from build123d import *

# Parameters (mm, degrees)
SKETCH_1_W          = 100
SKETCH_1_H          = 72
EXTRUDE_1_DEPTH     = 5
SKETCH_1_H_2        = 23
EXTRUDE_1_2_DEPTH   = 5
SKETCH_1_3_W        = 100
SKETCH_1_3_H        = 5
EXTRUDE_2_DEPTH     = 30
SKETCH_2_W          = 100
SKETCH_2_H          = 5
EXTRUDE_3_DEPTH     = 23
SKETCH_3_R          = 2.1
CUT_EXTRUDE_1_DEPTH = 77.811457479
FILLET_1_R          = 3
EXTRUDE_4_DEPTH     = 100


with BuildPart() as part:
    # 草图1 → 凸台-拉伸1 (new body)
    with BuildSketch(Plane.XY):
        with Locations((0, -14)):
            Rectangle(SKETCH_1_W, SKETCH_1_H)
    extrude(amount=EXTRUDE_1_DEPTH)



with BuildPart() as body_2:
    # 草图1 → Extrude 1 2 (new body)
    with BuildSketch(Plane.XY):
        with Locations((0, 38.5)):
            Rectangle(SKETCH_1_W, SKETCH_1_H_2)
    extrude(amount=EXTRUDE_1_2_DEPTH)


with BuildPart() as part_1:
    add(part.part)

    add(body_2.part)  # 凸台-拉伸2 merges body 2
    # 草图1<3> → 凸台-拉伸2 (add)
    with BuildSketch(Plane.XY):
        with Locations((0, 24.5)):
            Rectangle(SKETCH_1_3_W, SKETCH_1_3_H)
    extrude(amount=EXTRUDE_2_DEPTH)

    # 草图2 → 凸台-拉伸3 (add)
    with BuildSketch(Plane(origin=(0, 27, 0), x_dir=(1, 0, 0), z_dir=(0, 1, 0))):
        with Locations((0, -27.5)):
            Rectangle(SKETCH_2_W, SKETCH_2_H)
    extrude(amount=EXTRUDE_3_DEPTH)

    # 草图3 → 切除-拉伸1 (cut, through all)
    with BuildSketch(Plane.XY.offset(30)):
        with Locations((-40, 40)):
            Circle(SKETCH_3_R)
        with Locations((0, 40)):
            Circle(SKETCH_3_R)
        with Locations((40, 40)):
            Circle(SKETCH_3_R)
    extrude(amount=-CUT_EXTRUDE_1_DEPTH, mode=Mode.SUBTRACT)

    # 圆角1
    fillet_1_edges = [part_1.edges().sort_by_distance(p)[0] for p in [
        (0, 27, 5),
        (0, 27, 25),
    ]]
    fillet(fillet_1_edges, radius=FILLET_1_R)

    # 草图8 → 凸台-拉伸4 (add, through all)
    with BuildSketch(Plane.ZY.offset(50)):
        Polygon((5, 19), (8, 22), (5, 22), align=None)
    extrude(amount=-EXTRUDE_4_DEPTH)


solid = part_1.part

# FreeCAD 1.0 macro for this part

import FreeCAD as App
import Part
import Sketcher

V = App.Vector
Q = App.Units.Quantity


def edges_at(feature, points):
    """Names of the edges that pass closest to the given points."""
    edges = feature.Shape.Edges
    near = lambda p: min(range(len(edges)), key=lambda i: edges[i].distToShape(Part.Vertex(*p))[0])
    return sorted({f"Edge{near(p) + 1}" for p in points})


def add_polygon(sketch, points):
    """Adds a closed chain of lines whose ends are joined by coincident constraints."""
    first, n = sketch.GeometryCount, len(points)
    for a, b in zip(points, points[1:] + points[:1]):
        sketch.addGeometry(Part.LineSegment(App.Vector(*a, 0), App.Vector(*b, 0)), False)
    for i in range(n):
        sketch.addConstraint(Sketcher.Constraint("Coincident", first + i, 2, first + (i + 1) % n, 1))

doc = App.newDocument("Part")
body = doc.addObject("PartDesign::Body", "Body")

# Sketch on XY plane
sketch1 = body.newObject("Sketcher::SketchObject", "Sketch")
sketch1.AttachmentSupport = (doc.getObject("XY_Plane"), [""])
sketch1.MapMode = "FlatFace"
add_polygon(sketch1, [(-50, 22), (-50, -50), (50, -50), (50, 22)])  # lines 0-3
sketch1.addConstraint([
    Sketcher.Constraint("Vertical", 0),
    Sketcher.Constraint("Horizontal", 1),
    Sketcher.Constraint("Vertical", 2),
    Sketcher.Constraint("Horizontal", 3),
    Sketcher.Constraint("DistanceX", 1, 1, 1, 2, Q("100 mm")),
    Sketcher.Constraint("DistanceY", 0, 2, 0, 1, Q("72 mm")),
    Sketcher.Constraint("DistanceX", 0, 2, -1, 1, Q("50 mm")),
    Sketcher.Constraint("DistanceY", 0, 2, -1, 1, Q("50 mm")),
])
pad1 = body.newObject("PartDesign::Pad", "Pad")
pad1.Profile = sketch1
pad1.Length = 5
body2 = doc.addObject("PartDesign::Body", "Body001")

# Sketch on XY plane
sketch2 = body2.newObject("Sketcher::SketchObject", "Sketch001")
sketch2.AttachmentSupport = (doc.getObject("XY_Plane001"), [""])
sketch2.MapMode = "FlatFace"
add_polygon(sketch2, [(-50, 50), (-50, 27), (50, 27), (50, 50)])  # lines 0-3
sketch2.addConstraint([
    Sketcher.Constraint("Vertical", 0),
    Sketcher.Constraint("Horizontal", 1),
    Sketcher.Constraint("Vertical", 2),
    Sketcher.Constraint("Horizontal", 3),
    Sketcher.Constraint("DistanceX", 1, 1, 1, 2, Q("100 mm")),
    Sketcher.Constraint("DistanceY", 0, 2, 0, 1, Q("23 mm")),
    Sketcher.Constraint("DistanceX", 0, 2, -1, 1, Q("50 mm")),
    Sketcher.Constraint("DistanceY", -1, 1, 0, 2, Q("27 mm")),
])
pad2 = body2.newObject("PartDesign::Pad", "Pad001")
pad2.Profile = sketch2
pad2.Length = 5
body.AllowCompound = True
doc.recompute()

boolean = body.newObject("PartDesign::Boolean", "Boolean")
boolean.Type = "Fuse"
boolean.addObjects([body2])

# Sketch on XY plane
sketch3 = body.newObject("Sketcher::SketchObject", "Sketch002")
sketch3.AttachmentSupport = (doc.getObject("XY_Plane"), [""])
sketch3.MapMode = "FlatFace"
add_polygon(sketch3, [(-50, 27), (-50, 22), (50, 22), (50, 27)])  # lines 0-3
sketch3.addConstraint([
    Sketcher.Constraint("Vertical", 0),
    Sketcher.Constraint("Horizontal", 1),
    Sketcher.Constraint("Vertical", 2),
    Sketcher.Constraint("Horizontal", 3),
    Sketcher.Constraint("DistanceX", 1, 1, 1, 2, Q("100 mm")),
    Sketcher.Constraint("DistanceY", 0, 2, 0, 1, Q("5 mm")),
    Sketcher.Constraint("DistanceX", 0, 2, -1, 1, Q("50 mm")),
    Sketcher.Constraint("DistanceY", -1, 1, 0, 2, Q("22 mm")),
])
pad3 = body.newObject("PartDesign::Pad", "Pad002")
pad3.Profile = sketch3
pad3.Length = 30

# Sketch on XZ plane
sketch4 = body.newObject("Sketcher::SketchObject", "Sketch003")
sketch4.AttachmentSupport = (doc.getObject("XZ_Plane"), [""])
sketch4.MapMode = "FlatFace"
sketch4.AttachmentOffset = App.Placement(V(0, 0, -27), App.Rotation())
add_polygon(sketch4, [(-50, 25), (-50, 30), (50, 30), (50, 25)])  # lines 0-3
sketch4.addConstraint([
    Sketcher.Constraint("Vertical", 0),
    Sketcher.Constraint("Horizontal", 1),
    Sketcher.Constraint("Vertical", 2),
    Sketcher.Constraint("Horizontal", 3),
    Sketcher.Constraint("DistanceX", 1, 1, 1, 2, Q("100 mm")),
    Sketcher.Constraint("DistanceY", 0, 1, 0, 2, Q("5 mm")),
    Sketcher.Constraint("DistanceX", 0, 2, -1, 1, Q("50 mm")),
    Sketcher.Constraint("DistanceY", -1, 1, 0, 2, Q("30 mm")),
])
pad4 = body.newObject("PartDesign::Pad", "Pad003")
pad4.Profile = sketch4
pad4.Length = 23
pad4.Reversed = True

# Sketch on XY plane
sketch5 = body.newObject("Sketcher::SketchObject", "Sketch004")
sketch5.AttachmentSupport = (doc.getObject("XY_Plane"), [""])
sketch5.MapMode = "FlatFace"
sketch5.AttachmentOffset = App.Placement(V(0, 0, 30), App.Rotation())
sketch5.addGeometry([
    Part.Circle(V(-40, 40, 0), V(0, 0, 1), 2.1),
    Part.Circle(V(0, 40, 0), V(0, 0, 1), 2.1),
    Part.Circle(V(40, 40, 0), V(0, 0, 1), 2.1),
], False)
sketch5.addConstraint([
    Sketcher.Constraint("Equal", 0, 1),
    Sketcher.Constraint("Equal", 1, 2),
    Sketcher.Constraint("Symmetric", 0, 3, 2, 3, -2),
    Sketcher.Constraint("PointOnObject", 1, 3, -2),
    Sketcher.Constraint("Horizontal", 0, 3, 1, 3),
    Sketcher.Constraint("Diameter", 0, Q("4.2 mm")),
    Sketcher.Constraint("DistanceX", 0, 3, -1, 1, Q("40 mm")),
    Sketcher.Constraint("DistanceY", -1, 1, 0, 3, Q("40 mm")),
])
pocket1 = body.newObject("PartDesign::Pocket", "Pocket")
pocket1.Profile = sketch5
pocket1.Type = "ThroughAll"
doc.recompute()

fillet = body.newObject("PartDesign::Fillet", "Fillet")
fillet.Base = (pocket1, edges_at(pocket1, [(0, 27, 5), (0, 27, 25)]))
fillet.Radius = 3

# Sketch on YZ plane
sketch6 = body.newObject("Sketcher::SketchObject", "Sketch005")
sketch6.AttachmentSupport = (doc.getObject("YZ_Plane"), [""])
sketch6.MapMode = "FlatFace"
sketch6.AttachmentOffset = App.Placement(V(0, 0, -50), App.Rotation())
add_polygon(sketch6, [(19, 5), (22, 8), (22, 5)])  # lines 0-2
sketch6.addConstraint([
    Sketcher.Constraint("Vertical", 1),
    Sketcher.Constraint("Horizontal", 2),
    Sketcher.Constraint("Equal", 2, 1),
    Sketcher.Constraint("DistanceX", 2, 2, 2, 1, Q("3 mm")),
    Sketcher.Constraint("DistanceX", -1, 1, 0, 2, Q("22 mm")),
    Sketcher.Constraint("DistanceY", -1, 1, 0, 2, Q("8 mm")),
])
pad5 = body.newObject("PartDesign::Pad", "Pad004")
pad5.Profile = sketch6
pad5.Length = 100

doc.recompute()
